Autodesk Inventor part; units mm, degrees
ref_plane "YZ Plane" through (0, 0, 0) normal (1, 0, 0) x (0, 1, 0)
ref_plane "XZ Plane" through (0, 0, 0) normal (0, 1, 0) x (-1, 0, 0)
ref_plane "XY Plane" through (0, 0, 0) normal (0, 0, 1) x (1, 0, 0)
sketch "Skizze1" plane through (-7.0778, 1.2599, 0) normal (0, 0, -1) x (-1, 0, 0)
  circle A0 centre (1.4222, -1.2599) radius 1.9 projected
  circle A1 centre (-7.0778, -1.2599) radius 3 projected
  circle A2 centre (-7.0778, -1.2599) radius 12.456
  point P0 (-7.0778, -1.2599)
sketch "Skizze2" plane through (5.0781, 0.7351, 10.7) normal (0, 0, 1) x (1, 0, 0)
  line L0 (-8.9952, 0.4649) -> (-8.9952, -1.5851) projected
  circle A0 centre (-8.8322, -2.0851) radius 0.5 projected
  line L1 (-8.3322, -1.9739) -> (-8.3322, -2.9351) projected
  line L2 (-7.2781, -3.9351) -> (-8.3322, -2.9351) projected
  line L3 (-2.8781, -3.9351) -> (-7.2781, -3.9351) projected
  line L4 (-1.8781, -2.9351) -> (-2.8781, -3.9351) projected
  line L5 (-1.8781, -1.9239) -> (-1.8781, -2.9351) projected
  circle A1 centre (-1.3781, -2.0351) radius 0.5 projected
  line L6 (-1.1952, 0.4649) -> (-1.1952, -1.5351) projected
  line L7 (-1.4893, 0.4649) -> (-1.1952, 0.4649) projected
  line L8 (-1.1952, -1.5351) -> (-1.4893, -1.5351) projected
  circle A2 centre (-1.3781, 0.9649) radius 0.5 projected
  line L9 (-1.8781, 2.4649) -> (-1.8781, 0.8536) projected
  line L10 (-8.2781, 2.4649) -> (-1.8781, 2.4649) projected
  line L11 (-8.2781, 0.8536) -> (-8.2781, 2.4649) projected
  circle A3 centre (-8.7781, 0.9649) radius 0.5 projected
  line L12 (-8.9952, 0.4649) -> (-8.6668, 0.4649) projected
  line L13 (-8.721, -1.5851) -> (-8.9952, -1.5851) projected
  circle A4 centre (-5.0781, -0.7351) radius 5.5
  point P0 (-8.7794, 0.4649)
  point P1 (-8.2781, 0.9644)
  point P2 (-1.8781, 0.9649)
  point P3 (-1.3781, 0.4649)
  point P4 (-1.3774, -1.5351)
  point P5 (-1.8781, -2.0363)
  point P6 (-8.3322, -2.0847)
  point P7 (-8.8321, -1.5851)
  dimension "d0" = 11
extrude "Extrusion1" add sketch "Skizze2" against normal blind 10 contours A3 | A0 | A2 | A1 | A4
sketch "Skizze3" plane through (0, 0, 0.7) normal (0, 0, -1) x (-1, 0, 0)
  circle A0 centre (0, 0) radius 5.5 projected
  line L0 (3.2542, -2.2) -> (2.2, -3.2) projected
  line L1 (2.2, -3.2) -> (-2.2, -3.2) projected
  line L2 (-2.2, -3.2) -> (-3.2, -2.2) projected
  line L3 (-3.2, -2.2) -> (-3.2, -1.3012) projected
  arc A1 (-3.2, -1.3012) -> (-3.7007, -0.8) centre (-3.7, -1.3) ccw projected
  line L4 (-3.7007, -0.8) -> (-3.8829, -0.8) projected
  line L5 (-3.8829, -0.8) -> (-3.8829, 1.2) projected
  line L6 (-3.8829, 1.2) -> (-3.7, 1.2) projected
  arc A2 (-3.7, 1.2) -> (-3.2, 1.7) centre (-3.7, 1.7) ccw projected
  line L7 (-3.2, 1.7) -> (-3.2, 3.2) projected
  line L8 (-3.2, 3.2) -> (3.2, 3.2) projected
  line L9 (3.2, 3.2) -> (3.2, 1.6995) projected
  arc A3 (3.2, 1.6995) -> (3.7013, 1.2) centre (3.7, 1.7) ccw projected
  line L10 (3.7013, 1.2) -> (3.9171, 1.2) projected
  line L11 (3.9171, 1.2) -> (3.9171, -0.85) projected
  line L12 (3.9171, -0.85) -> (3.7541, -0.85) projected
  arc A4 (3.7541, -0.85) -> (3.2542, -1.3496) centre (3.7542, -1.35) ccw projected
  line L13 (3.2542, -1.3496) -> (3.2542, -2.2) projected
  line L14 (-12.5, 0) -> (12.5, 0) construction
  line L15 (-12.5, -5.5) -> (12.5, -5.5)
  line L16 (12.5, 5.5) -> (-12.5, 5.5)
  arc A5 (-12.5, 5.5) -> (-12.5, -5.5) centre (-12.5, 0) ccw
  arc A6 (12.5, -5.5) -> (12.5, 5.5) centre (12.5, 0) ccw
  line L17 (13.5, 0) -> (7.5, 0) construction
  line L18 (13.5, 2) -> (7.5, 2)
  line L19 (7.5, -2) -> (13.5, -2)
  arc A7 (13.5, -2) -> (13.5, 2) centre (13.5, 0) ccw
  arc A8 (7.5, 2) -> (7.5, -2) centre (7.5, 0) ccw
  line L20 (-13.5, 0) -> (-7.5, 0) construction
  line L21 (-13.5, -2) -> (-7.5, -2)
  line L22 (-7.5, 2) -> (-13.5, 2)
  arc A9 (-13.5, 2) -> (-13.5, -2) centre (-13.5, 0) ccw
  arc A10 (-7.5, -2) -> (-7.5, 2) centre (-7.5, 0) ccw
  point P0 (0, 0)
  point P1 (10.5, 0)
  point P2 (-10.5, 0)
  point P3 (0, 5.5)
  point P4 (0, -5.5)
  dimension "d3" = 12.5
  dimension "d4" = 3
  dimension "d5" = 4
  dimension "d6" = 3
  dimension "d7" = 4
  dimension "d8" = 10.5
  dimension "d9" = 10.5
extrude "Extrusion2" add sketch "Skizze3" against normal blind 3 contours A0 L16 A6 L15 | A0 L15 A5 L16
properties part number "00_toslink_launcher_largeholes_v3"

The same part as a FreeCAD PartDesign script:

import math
import FreeCAD as App
import Part
import Sketcher

V = App.Vector
Q = App.Units.Quantity

doc = App.newDocument("Part")
body = doc.addObject("PartDesign::Body", "Body")

# Sketch on XY plane
sketch1 = body.newObject("Sketcher::SketchObject", "Sketch")
sketch1.AttachmentSupport = (doc.getObject("XY_Plane"), [""])
sketch1.MapMode = "FlatFace"
sketch1.AttachmentOffset = App.Placement(V(0, 0, 10.7), App.Rotation())
sketch1.addGeometry([
    Part.Circle(V(0, 0, 0), V(0, 0, 1), 5.5),  # 0
    Part.ArcOfCircle(Part.Circle(V(-3.7, 1.7, 0), V(0, 0, 1), 0.5), math.radians(-90), math.radians(0)),  # 1
    Part.LineSegment(V(-3.2, 1.7, 0), V(-3.2, 3.2, 0)),  # 2
    Part.LineSegment(V(-3.2, 3.2, 0), V(3.2, 3.2, 0)),  # 3
    Part.LineSegment(V(3.2, 3.2, 0), V(3.2, 1.7, 0)),  # 4
    Part.ArcOfCircle(Part.Circle(V(3.7, 1.7, 0), V(0, 0, 1), 0.5), math.radians(180), math.radians(270)),  # 5
    Part.LineSegment(V(3.7, 1.2, 0), V(3.8829, 1.2, 0)),  # 6
    Part.LineSegment(V(3.8829, 1.2, 0), V(3.8829, -0.8, 0)),  # 7
    Part.LineSegment(V(3.8829, -0.8, 0), V(3.7, -0.8, 0)),  # 8
    Part.ArcOfCircle(Part.Circle(V(3.7, -1.3, 0), V(0, 0, 1), 0.5), math.radians(90), math.radians(180)),  # 9
    Part.LineSegment(V(3.2, -1.3, 0), V(3.2, -2.2, 0)),  # 10
    Part.LineSegment(V(3.2, -2.2, 0), V(2.2, -3.2, 0)),  # 11
    Part.LineSegment(V(2.2, -3.2, 0), V(-2.2, -3.2, 0)),  # 12
    Part.LineSegment(V(-2.2, -3.2, 0), V(-3.2541, -2.2, 0)),  # 13
    Part.LineSegment(V(-3.2541, -2.2, 0), V(-3.2541, -1.35, 0)),  # 14
    Part.ArcOfCircle(Part.Circle(V(-3.7541, -1.35, 0), V(0, 0, 1), 0.5), math.radians(0), math.radians(90)),  # 15
    Part.LineSegment(V(-3.7541, -0.85, 0), V(-3.9171, -0.85, 0)),  # 16
    Part.LineSegment(V(-3.9171, -0.85, 0), V(-3.9171, 1.2, 0)),  # 17
    Part.LineSegment(V(-3.9171, 1.2, 0), V(-3.7, 1.2, 0)),  # 18
], False)
sketch1.addConstraint([
    Sketcher.Constraint("Tangent", 1, 2, 2, 1),
    Sketcher.Constraint("Coincident", 2, 2, 3, 1),
    Sketcher.Constraint("Coincident", 3, 2, 4, 1),
    Sketcher.Constraint("Tangent", 4, 2, 5, 1),
    Sketcher.Constraint("Tangent", 5, 2, 6, 1),
    Sketcher.Constraint("Coincident", 6, 2, 7, 1),
    Sketcher.Constraint("Coincident", 7, 2, 8, 1),
    Sketcher.Constraint("Tangent", 8, 2, 9, 1),
    Sketcher.Constraint("Tangent", 9, 2, 10, 1),
    Sketcher.Constraint("Coincident", 10, 2, 11, 1),
    Sketcher.Constraint("Coincident", 11, 2, 12, 1),
    Sketcher.Constraint("Coincident", 12, 2, 13, 1),
    Sketcher.Constraint("Coincident", 13, 2, 14, 1),
    Sketcher.Constraint("Tangent", 14, 2, 15, 1),
    Sketcher.Constraint("Tangent", 15, 2, 16, 1),
    Sketcher.Constraint("Coincident", 16, 2, 17, 1),
    Sketcher.Constraint("Coincident", 17, 2, 18, 1),
    Sketcher.Constraint("Tangent", 18, 2, 1, 1),
    Sketcher.Constraint("Vertical", 2),
    Sketcher.Constraint("Horizontal", 3),
    Sketcher.Constraint("Vertical", 4),
    Sketcher.Constraint("Horizontal", 6),
    Sketcher.Constraint("Vertical", 7),
    Sketcher.Constraint("Horizontal", 8),
    Sketcher.Constraint("Vertical", 10),
    Sketcher.Constraint("Horizontal", 12),
    Sketcher.Constraint("Vertical", 14),
    Sketcher.Constraint("Horizontal", 16),
    Sketcher.Constraint("Vertical", 17),
    Sketcher.Constraint("Horizontal", 18),
    Sketcher.Constraint("Coincident", 0, 3, -1, 1),
    Sketcher.Constraint("Equal", 1, 5),
    Sketcher.Constraint("Equal", 5, 9),
    Sketcher.Constraint("Equal", 9, 15),
    Sketcher.Constraint("Symmetric", 1, 3, 5, 3, -2),
    Sketcher.Constraint("Horizontal", 10, 2, 13, 2),
    Sketcher.Constraint("Vertical", 5, 3, 9, 3),
    Sketcher.Constraint("Diameter", 0, 11.0),
    Sketcher.Constraint("Radius", 1, 0.5),
    Sketcher.Constraint("DistanceY", 7, 2, 7, 1, 2.0),
    Sketcher.Constraint("Angle", 11, Q("-135 deg")),
    Sketcher.Constraint("DistanceX", 3, 1, 3, 2, 6.4),
    Sketcher.Constraint("DistanceX", 12, 2, 12, 1, 4.4),
    Sketcher.Constraint("DistanceY", 2, 1, 2, 2, 1.5),
    Sketcher.Constraint("DistanceY", 10, 2, 10, 1, 0.9),
    Sketcher.Constraint("DistanceX", 11, 2, 10, 2, 1.0),
    Sketcher.Constraint("DistanceY", 14, 1, 14, 2, 0.85),
    Sketcher.Constraint("DistanceY", -1, 1, 1, 3, 1.7),
    Sketcher.Constraint("DistanceX", 6, 1, 6, 2, 0.183),
    Sketcher.Constraint("DistanceX", 16, 2, 16, 1, 0.163),
    Sketcher.Constraint("DistanceX", 18, 1, 18, 2, 0.217),
])
pad1 = body.newObject("PartDesign::Pad", "Pad")
pad1.Profile = sketch1
pad1.Length = 10
pad1.Reversed = True

# Sketch on XY plane
sketch2 = body.newObject("Sketcher::SketchObject", "Sketch001")
sketch2.AttachmentSupport = (doc.getObject("XY_Plane"), [""])
sketch2.MapMode = "FlatFace"
sketch2.AttachmentOffset = App.Placement(V(0, 0, 0.7), App.Rotation())
sketch2.addGeometry([
    Part.ArcOfCircle(Part.Circle(V(0, 0, 0), V(0, 0, 1), 5.5), math.radians(90), math.radians(180)),  # 0
    Part.ArcOfCircle(Part.Circle(V(0, 0, 0), V(0, 0, 1), 5.5), math.radians(180), math.radians(270)),  # 1
    Part.LineSegment(V(0, -5.5, 0), V(-12.5, -5.5, 0)),  # 2
    Part.ArcOfCircle(Part.Circle(V(-12.5, 0, 0), V(0, 0, 1), 5.5), math.radians(90), math.radians(270)),  # 3
    Part.LineSegment(V(-12.5, 5.5, 0), V(0, 5.5, 0)),  # 4
    Part.ArcOfCircle(Part.Circle(V(-7.5, 0, 0), V(0, 0, 1), 2), math.radians(-90), math.radians(0)),  # 5
    Part.ArcOfCircle(Part.Circle(V(-7.5, 0, 0), V(0, 0, 1), 2), math.radians(0), math.radians(90)),  # 6
    Part.LineSegment(V(-7.5, 2, 0), V(-13.5, 2, 0)),  # 7
    Part.ArcOfCircle(Part.Circle(V(-13.5, 0, 0), V(0, 0, 1), 2), math.radians(90), math.radians(270)),  # 8
    Part.LineSegment(V(-13.5, -2, 0), V(-7.5, -2, 0)),  # 9
    Part.ArcOfCircle(Part.Circle(V(0, 0, 0), V(0, 0, 1), 5.5), math.radians(0), math.radians(90)),  # 10
    Part.LineSegment(V(0, 5.5, 0), V(12.5, 5.5, 0)),  # 11
    Part.ArcOfCircle(Part.Circle(V(12.5, 0, 0), V(0, 0, 1), 5.5), math.radians(-90), math.radians(90)),  # 12
    Part.LineSegment(V(12.5, -5.5, 0), V(0, -5.5, 0)),  # 13
    Part.ArcOfCircle(Part.Circle(V(0, 0, 0), V(0, 0, 1), 5.5), math.radians(-90), math.radians(0)),  # 14
    Part.ArcOfCircle(Part.Circle(V(7.5, 0, 0), V(0, 0, 1), 2), math.radians(90), math.radians(180)),  # 15
    Part.ArcOfCircle(Part.Circle(V(7.5, 0, 0), V(0, 0, 1), 2), math.radians(180), math.radians(270)),  # 16
    Part.LineSegment(V(7.5, -2, 0), V(13.5, -2, 0)),  # 17
    Part.ArcOfCircle(Part.Circle(V(13.5, 0, 0), V(0, 0, 1), 2), math.radians(-90), math.radians(90)),  # 18
    Part.LineSegment(V(13.5, 2, 0), V(7.5, 2, 0)),  # 19
], False)
sketch2.addConstraint([
    Sketcher.Constraint("Tangent", 0, 2, 1, 1),
    Sketcher.Constraint("Tangent", 1, 2, 2, 1),
    Sketcher.Constraint("Tangent", 2, 2, 3, 2),
    Sketcher.Constraint("Tangent", 3, 1, 4, 1),
    Sketcher.Constraint("Tangent", 4, 2, 0, 1),
    Sketcher.Constraint("Tangent", 5, 2, 6, 1),
    Sketcher.Constraint("Tangent", 6, 2, 7, 1),
    Sketcher.Constraint("Tangent", 7, 2, 8, 1),
    Sketcher.Constraint("Tangent", 8, 2, 9, 1),
    Sketcher.Constraint("Tangent", 9, 2, 5, 1),
    Sketcher.Constraint("Tangent", 10, 2, 11, 1),
    Sketcher.Constraint("Tangent", 11, 2, 12, 2),
    Sketcher.Constraint("Tangent", 12, 1, 13, 1),
    Sketcher.Constraint("Tangent", 13, 2, 14, 1),
    Sketcher.Constraint("Tangent", 14, 2, 10, 1),
    Sketcher.Constraint("Tangent", 15, 2, 16, 1),
    Sketcher.Constraint("Tangent", 16, 2, 17, 1),
    Sketcher.Constraint("Tangent", 17, 2, 18, 1),
    Sketcher.Constraint("Tangent", 18, 2, 19, 1),
    Sketcher.Constraint("Tangent", 19, 2, 15, 1),
    Sketcher.Constraint("Horizontal", 2),
    Sketcher.Constraint("Horizontal", 4),
    Sketcher.Constraint("Horizontal", 7),
    Sketcher.Constraint("Horizontal", 9),
    Sketcher.Constraint("Horizontal", 11),
    Sketcher.Constraint("Horizontal", 13),
    Sketcher.Constraint("Horizontal", 17),
    Sketcher.Constraint("Horizontal", 19),
    Sketcher.Constraint("Coincident", 0, 3, -1, 1),
    Sketcher.Constraint("Coincident", 10, 3, -1, 1),
    Sketcher.Constraint("Coincident", 5, 2, 0, 2),
    Sketcher.Constraint("Coincident", 13, 2, 1, 2),
    Sketcher.Constraint("Coincident", 15, 2, 14, 2),
    Sketcher.Constraint("Equal", 0, 1),
    Sketcher.Constraint("Equal", 5, 6),
    Sketcher.Constraint("Equal", 8, 15),
    Sketcher.Constraint("Equal", 15, 16),
    Sketcher.Constraint("Symmetric", 8, 3, 18, 3, -1, 1),
    Sketcher.Constraint("PointOnObject", 5, 3, -1),
    Sketcher.Constraint("PointOnObject", 0, 2, -1),
    Sketcher.Constraint("PointOnObject", 14, 2, -1),
    Sketcher.Constraint("Equal", 4, 11),
    Sketcher.Constraint("Radius", 5, 2.0),
    Sketcher.Constraint("DistanceX", 2, 2, 2, 1, 12.5),
    Sketcher.Constraint("Radius", 0, 5.5),
    Sketcher.Constraint("DistanceX", 7, 2, 7, 1, 6.0),
])
pad2 = body.newObject("PartDesign::Pad", "Pad001")
pad2.Profile = sketch2
pad2.Length = 3

doc.recompute()
